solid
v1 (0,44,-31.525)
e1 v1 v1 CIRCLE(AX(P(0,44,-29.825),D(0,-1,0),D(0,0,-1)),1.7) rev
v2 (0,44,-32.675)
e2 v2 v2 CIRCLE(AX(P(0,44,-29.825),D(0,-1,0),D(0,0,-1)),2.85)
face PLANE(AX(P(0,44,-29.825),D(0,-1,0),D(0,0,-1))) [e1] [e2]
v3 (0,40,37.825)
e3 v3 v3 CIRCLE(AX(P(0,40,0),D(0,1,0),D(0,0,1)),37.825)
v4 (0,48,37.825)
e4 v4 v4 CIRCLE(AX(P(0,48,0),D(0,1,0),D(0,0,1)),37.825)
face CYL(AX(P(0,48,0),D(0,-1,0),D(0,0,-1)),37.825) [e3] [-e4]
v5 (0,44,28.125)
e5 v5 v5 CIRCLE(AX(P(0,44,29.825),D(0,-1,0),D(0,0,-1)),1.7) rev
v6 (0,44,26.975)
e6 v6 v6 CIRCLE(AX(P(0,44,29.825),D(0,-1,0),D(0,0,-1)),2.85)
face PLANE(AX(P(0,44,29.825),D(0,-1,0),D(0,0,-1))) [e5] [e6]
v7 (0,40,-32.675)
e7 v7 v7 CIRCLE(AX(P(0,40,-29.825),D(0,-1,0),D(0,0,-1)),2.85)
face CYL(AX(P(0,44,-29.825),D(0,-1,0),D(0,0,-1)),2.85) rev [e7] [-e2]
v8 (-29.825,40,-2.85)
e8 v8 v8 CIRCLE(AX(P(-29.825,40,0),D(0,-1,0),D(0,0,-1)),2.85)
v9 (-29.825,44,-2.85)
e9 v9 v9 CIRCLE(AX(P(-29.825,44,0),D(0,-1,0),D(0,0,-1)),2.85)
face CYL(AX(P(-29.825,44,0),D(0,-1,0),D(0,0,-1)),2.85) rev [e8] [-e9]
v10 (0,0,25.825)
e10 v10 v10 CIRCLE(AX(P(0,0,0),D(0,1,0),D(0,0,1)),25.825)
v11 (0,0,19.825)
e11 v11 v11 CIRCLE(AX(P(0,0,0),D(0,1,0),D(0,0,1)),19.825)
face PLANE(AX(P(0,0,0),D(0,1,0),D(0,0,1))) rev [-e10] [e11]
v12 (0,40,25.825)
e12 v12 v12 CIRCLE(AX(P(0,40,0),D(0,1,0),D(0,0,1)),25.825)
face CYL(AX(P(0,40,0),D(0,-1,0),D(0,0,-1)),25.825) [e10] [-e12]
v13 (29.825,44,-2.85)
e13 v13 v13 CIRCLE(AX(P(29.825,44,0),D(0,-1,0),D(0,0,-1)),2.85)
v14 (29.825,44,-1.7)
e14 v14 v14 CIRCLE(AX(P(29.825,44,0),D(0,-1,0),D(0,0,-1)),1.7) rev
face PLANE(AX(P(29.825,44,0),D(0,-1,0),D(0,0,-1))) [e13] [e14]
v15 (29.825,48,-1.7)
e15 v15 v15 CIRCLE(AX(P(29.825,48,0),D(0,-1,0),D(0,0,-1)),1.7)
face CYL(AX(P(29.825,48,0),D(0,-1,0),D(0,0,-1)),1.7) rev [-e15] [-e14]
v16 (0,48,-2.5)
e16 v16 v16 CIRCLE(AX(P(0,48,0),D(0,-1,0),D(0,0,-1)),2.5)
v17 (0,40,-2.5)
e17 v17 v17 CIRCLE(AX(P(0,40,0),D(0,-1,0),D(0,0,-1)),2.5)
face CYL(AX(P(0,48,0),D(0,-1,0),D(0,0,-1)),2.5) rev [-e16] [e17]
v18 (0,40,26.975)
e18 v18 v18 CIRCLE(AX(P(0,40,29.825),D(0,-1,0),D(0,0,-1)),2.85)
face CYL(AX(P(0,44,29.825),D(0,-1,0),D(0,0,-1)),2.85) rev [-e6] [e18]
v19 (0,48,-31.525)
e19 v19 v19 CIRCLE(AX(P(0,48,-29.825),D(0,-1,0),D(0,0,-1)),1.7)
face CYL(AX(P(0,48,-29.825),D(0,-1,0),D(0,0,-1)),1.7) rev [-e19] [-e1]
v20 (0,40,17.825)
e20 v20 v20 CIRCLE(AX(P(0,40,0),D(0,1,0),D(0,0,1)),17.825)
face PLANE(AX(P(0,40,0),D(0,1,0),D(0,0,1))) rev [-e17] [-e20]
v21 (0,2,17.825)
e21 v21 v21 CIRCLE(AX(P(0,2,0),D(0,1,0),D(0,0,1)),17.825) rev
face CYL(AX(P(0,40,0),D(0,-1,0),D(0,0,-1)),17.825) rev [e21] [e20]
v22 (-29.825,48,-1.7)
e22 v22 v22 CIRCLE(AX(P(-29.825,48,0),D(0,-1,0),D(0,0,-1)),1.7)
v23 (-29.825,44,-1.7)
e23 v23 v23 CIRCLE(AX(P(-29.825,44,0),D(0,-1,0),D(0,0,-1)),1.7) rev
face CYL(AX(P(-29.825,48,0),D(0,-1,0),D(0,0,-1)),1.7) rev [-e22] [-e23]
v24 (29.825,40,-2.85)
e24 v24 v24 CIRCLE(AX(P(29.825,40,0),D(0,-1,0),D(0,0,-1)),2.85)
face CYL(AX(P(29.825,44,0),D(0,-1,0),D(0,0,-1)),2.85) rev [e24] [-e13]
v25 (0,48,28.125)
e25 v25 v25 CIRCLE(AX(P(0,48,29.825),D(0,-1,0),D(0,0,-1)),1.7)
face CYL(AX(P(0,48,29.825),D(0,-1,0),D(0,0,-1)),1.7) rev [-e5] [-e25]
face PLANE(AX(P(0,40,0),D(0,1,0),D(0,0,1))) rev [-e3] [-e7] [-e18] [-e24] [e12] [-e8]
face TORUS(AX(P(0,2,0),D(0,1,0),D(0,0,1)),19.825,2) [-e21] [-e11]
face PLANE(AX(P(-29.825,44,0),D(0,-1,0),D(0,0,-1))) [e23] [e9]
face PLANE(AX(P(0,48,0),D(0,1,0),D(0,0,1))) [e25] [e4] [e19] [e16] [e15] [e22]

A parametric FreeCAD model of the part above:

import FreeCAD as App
import Part
import Sketcher
Q = App.Units.Quantity


def edges_at(feature, points):
    """Names of the edges that pass closest to the given points."""
    edges = feature.Shape.Edges
    near = lambda p: min(range(len(edges)), key=lambda i: edges[i].distToShape(Part.Vertex(*p))[0])
    return sorted({f"Edge{near(p) + 1}" for p in points})

doc = App.newDocument("Part")
body = doc.addObject("PartDesign::Body", "Body")

sketch1 = body.newObject("Sketcher::SketchObject", "Sketch")
sketch1.AttachmentSupport = (doc.getObject("XZ_Plane"), [""])
sketch1.MapMode = "FlatFace"
sketch1.addGeometry(Part.Circle(App.Vector(0, 0, 0), App.Vector(0, 0, 1), 25.825), False)
sketch1.addGeometry(Part.Circle(App.Vector(0, 0, 0), App.Vector(0, 0, 1), 17.825), False)
sketch1.addConstraint(Sketcher.Constraint("Coincident", 0, 3, -1, 1))
sketch1.addConstraint(Sketcher.Constraint("Coincident", 1, 3, -1, 1))
sketch1.addConstraint(Sketcher.Constraint("Diameter", 0, Q("51.65 mm")))
sketch1.addConstraint(Sketcher.Constraint("Diameter", 1, Q("35.65 mm")))
pad1 = body.newObject("PartDesign::Pad", "Pad")
pad1.Profile = sketch1
pad1.Length = 40
pad1.Reversed = True

sketch2 = body.newObject("Sketcher::SketchObject", "Sketch001")
sketch2.AttachmentSupport = (doc.getObject("XZ_Plane"), [""])
sketch2.MapMode = "FlatFace"
sketch2.AttachmentOffset = App.Placement(App.Vector(0, 0, -40), App.Rotation())
sketch2.addGeometry(Part.Circle(App.Vector(0, 0, 0), App.Vector(0, 0, 1), 37.825), False)
sketch2.addConstraint(Sketcher.Constraint("Coincident", 0, 3, -1, 1))
sketch2.addConstraint(Sketcher.Constraint("Diameter", 0, Q("75.65 mm")))
pad2 = body.newObject("PartDesign::Pad", "Pad001")
pad2.Profile = sketch2
pad2.Length = 8
pad2.Reversed = True

sketch3 = body.newObject("Sketcher::SketchObject", "Sketch002")
sketch3.AttachmentSupport = (doc.getObject("XZ_Plane"), [""])
sketch3.MapMode = "FlatFace"
sketch3.AttachmentOffset = App.Placement(App.Vector(0, 0, -40), App.Rotation())
sketch3.addGeometry(Part.Circle(App.Vector(0, 29.825, 0), App.Vector(0, 0, 1), 1.7), False)
sketch3.addGeometry(Part.Circle(App.Vector(29.825, 0, 0), App.Vector(0, 0, 1), 1.7), False)
sketch3.addGeometry(Part.Circle(App.Vector(0, -29.825, 0), App.Vector(0, 0, 1), 1.7), False)
sketch3.addGeometry(Part.Circle(App.Vector(-29.825, 0, 0), App.Vector(0, 0, 1), 1.7), False)
sketch3.addConstraint(Sketcher.Constraint("Equal", 0, 1))
sketch3.addConstraint(Sketcher.Constraint("Equal", 1, 2))
sketch3.addConstraint(Sketcher.Constraint("Equal", 2, 3))
sketch3.addConstraint(Sketcher.Constraint("Symmetric", 0, 3, 2, 3, -1, 1))
sketch3.addConstraint(Sketcher.Constraint("Symmetric", 1, 3, 3, 3, -1, 1))
sketch3.addConstraint(Sketcher.Constraint("PointOnObject", 0, 3, -2))
sketch3.addConstraint(Sketcher.Constraint("PointOnObject", 1, 3, -1))
sketch3.addConstraint(Sketcher.Constraint("Diameter", 0, Q("3.4 mm")))
sketch3.addConstraint(Sketcher.Constraint("DistanceY", 2, 3, 0, 3, Q("59.65 mm")))
sketch3.addConstraint(Sketcher.Constraint("DistanceX", 3, 3, 1, 3, Q("59.65 mm")))
pocket1 = body.newObject("PartDesign::Pocket", "Pocket")
pocket1.Profile = sketch3
pocket1.Type = "ThroughAll"

sketch4 = body.newObject("Sketcher::SketchObject", "Sketch003")
sketch4.AttachmentSupport = (doc.getObject("XZ_Plane"), [""])
sketch4.MapMode = "FlatFace"
sketch4.AttachmentOffset = App.Placement(App.Vector(0, 0, -40), App.Rotation())
sketch4.addGeometry(Part.Circle(App.Vector(0, 29.825, 0), App.Vector(0, 0, 1), 2.85), False)
sketch4.addGeometry(Part.Circle(App.Vector(29.825, 0, 0), App.Vector(0, 0, 1), 2.85), False)
sketch4.addGeometry(Part.Circle(App.Vector(0, -29.825, 0), App.Vector(0, 0, 1), 2.85), False)
sketch4.addGeometry(Part.Circle(App.Vector(-29.825, 0, 0), App.Vector(0, 0, 1), 2.85), False)
sketch4.addConstraint(Sketcher.Constraint("Equal", 0, 1))
sketch4.addConstraint(Sketcher.Constraint("Equal", 1, 2))
sketch4.addConstraint(Sketcher.Constraint("Equal", 2, 3))
sketch4.addConstraint(Sketcher.Constraint("Symmetric", 0, 3, 2, 3, -1, 1))
sketch4.addConstraint(Sketcher.Constraint("Symmetric", 1, 3, 3, 3, -1, 1))
sketch4.addConstraint(Sketcher.Constraint("PointOnObject", 0, 3, -2))
sketch4.addConstraint(Sketcher.Constraint("PointOnObject", 1, 3, -1))
sketch4.addConstraint(Sketcher.Constraint("Diameter", 0, Q("5.7 mm")))
sketch4.addConstraint(Sketcher.Constraint("DistanceY", 2, 3, 0, 3, Q("59.65 mm")))
sketch4.addConstraint(Sketcher.Constraint("DistanceX", 3, 3, 1, 3, Q("59.65 mm")))
pocket2 = body.newObject("PartDesign::Pocket", "Pocket001")
pocket2.Profile = sketch4
pocket2.Length = 4
doc.recompute()

fillet = body.newObject("PartDesign::Fillet", "Fillet")
fillet.Base = (pocket2, edges_at(pocket2, [(-17.825, 0, 0)]))
fillet.Radius = 2

sketch5 = body.newObject("Sketcher::SketchObject", "Sketch004")
sketch5.AttachmentSupport = (doc.getObject("XZ_Plane"), [""])
sketch5.MapMode = "FlatFace"
sketch5.AttachmentOffset = App.Placement(App.Vector(0, 0, -40), App.Rotation())
sketch5.addGeometry(Part.Circle(App.Vector(0, 0, 0), App.Vector(0, 0, 1), 2.5), False)
sketch5.addConstraint(Sketcher.Constraint("Coincident", 0, 3, -1, 1))
sketch5.addConstraint(Sketcher.Constraint("Diameter", 0, Q("5 mm")))
pocket3 = body.newObject("PartDesign::Pocket", "Pocket002")
pocket3.Profile = sketch5
pocket3.Type = "ThroughAll"

doc.recompute()
